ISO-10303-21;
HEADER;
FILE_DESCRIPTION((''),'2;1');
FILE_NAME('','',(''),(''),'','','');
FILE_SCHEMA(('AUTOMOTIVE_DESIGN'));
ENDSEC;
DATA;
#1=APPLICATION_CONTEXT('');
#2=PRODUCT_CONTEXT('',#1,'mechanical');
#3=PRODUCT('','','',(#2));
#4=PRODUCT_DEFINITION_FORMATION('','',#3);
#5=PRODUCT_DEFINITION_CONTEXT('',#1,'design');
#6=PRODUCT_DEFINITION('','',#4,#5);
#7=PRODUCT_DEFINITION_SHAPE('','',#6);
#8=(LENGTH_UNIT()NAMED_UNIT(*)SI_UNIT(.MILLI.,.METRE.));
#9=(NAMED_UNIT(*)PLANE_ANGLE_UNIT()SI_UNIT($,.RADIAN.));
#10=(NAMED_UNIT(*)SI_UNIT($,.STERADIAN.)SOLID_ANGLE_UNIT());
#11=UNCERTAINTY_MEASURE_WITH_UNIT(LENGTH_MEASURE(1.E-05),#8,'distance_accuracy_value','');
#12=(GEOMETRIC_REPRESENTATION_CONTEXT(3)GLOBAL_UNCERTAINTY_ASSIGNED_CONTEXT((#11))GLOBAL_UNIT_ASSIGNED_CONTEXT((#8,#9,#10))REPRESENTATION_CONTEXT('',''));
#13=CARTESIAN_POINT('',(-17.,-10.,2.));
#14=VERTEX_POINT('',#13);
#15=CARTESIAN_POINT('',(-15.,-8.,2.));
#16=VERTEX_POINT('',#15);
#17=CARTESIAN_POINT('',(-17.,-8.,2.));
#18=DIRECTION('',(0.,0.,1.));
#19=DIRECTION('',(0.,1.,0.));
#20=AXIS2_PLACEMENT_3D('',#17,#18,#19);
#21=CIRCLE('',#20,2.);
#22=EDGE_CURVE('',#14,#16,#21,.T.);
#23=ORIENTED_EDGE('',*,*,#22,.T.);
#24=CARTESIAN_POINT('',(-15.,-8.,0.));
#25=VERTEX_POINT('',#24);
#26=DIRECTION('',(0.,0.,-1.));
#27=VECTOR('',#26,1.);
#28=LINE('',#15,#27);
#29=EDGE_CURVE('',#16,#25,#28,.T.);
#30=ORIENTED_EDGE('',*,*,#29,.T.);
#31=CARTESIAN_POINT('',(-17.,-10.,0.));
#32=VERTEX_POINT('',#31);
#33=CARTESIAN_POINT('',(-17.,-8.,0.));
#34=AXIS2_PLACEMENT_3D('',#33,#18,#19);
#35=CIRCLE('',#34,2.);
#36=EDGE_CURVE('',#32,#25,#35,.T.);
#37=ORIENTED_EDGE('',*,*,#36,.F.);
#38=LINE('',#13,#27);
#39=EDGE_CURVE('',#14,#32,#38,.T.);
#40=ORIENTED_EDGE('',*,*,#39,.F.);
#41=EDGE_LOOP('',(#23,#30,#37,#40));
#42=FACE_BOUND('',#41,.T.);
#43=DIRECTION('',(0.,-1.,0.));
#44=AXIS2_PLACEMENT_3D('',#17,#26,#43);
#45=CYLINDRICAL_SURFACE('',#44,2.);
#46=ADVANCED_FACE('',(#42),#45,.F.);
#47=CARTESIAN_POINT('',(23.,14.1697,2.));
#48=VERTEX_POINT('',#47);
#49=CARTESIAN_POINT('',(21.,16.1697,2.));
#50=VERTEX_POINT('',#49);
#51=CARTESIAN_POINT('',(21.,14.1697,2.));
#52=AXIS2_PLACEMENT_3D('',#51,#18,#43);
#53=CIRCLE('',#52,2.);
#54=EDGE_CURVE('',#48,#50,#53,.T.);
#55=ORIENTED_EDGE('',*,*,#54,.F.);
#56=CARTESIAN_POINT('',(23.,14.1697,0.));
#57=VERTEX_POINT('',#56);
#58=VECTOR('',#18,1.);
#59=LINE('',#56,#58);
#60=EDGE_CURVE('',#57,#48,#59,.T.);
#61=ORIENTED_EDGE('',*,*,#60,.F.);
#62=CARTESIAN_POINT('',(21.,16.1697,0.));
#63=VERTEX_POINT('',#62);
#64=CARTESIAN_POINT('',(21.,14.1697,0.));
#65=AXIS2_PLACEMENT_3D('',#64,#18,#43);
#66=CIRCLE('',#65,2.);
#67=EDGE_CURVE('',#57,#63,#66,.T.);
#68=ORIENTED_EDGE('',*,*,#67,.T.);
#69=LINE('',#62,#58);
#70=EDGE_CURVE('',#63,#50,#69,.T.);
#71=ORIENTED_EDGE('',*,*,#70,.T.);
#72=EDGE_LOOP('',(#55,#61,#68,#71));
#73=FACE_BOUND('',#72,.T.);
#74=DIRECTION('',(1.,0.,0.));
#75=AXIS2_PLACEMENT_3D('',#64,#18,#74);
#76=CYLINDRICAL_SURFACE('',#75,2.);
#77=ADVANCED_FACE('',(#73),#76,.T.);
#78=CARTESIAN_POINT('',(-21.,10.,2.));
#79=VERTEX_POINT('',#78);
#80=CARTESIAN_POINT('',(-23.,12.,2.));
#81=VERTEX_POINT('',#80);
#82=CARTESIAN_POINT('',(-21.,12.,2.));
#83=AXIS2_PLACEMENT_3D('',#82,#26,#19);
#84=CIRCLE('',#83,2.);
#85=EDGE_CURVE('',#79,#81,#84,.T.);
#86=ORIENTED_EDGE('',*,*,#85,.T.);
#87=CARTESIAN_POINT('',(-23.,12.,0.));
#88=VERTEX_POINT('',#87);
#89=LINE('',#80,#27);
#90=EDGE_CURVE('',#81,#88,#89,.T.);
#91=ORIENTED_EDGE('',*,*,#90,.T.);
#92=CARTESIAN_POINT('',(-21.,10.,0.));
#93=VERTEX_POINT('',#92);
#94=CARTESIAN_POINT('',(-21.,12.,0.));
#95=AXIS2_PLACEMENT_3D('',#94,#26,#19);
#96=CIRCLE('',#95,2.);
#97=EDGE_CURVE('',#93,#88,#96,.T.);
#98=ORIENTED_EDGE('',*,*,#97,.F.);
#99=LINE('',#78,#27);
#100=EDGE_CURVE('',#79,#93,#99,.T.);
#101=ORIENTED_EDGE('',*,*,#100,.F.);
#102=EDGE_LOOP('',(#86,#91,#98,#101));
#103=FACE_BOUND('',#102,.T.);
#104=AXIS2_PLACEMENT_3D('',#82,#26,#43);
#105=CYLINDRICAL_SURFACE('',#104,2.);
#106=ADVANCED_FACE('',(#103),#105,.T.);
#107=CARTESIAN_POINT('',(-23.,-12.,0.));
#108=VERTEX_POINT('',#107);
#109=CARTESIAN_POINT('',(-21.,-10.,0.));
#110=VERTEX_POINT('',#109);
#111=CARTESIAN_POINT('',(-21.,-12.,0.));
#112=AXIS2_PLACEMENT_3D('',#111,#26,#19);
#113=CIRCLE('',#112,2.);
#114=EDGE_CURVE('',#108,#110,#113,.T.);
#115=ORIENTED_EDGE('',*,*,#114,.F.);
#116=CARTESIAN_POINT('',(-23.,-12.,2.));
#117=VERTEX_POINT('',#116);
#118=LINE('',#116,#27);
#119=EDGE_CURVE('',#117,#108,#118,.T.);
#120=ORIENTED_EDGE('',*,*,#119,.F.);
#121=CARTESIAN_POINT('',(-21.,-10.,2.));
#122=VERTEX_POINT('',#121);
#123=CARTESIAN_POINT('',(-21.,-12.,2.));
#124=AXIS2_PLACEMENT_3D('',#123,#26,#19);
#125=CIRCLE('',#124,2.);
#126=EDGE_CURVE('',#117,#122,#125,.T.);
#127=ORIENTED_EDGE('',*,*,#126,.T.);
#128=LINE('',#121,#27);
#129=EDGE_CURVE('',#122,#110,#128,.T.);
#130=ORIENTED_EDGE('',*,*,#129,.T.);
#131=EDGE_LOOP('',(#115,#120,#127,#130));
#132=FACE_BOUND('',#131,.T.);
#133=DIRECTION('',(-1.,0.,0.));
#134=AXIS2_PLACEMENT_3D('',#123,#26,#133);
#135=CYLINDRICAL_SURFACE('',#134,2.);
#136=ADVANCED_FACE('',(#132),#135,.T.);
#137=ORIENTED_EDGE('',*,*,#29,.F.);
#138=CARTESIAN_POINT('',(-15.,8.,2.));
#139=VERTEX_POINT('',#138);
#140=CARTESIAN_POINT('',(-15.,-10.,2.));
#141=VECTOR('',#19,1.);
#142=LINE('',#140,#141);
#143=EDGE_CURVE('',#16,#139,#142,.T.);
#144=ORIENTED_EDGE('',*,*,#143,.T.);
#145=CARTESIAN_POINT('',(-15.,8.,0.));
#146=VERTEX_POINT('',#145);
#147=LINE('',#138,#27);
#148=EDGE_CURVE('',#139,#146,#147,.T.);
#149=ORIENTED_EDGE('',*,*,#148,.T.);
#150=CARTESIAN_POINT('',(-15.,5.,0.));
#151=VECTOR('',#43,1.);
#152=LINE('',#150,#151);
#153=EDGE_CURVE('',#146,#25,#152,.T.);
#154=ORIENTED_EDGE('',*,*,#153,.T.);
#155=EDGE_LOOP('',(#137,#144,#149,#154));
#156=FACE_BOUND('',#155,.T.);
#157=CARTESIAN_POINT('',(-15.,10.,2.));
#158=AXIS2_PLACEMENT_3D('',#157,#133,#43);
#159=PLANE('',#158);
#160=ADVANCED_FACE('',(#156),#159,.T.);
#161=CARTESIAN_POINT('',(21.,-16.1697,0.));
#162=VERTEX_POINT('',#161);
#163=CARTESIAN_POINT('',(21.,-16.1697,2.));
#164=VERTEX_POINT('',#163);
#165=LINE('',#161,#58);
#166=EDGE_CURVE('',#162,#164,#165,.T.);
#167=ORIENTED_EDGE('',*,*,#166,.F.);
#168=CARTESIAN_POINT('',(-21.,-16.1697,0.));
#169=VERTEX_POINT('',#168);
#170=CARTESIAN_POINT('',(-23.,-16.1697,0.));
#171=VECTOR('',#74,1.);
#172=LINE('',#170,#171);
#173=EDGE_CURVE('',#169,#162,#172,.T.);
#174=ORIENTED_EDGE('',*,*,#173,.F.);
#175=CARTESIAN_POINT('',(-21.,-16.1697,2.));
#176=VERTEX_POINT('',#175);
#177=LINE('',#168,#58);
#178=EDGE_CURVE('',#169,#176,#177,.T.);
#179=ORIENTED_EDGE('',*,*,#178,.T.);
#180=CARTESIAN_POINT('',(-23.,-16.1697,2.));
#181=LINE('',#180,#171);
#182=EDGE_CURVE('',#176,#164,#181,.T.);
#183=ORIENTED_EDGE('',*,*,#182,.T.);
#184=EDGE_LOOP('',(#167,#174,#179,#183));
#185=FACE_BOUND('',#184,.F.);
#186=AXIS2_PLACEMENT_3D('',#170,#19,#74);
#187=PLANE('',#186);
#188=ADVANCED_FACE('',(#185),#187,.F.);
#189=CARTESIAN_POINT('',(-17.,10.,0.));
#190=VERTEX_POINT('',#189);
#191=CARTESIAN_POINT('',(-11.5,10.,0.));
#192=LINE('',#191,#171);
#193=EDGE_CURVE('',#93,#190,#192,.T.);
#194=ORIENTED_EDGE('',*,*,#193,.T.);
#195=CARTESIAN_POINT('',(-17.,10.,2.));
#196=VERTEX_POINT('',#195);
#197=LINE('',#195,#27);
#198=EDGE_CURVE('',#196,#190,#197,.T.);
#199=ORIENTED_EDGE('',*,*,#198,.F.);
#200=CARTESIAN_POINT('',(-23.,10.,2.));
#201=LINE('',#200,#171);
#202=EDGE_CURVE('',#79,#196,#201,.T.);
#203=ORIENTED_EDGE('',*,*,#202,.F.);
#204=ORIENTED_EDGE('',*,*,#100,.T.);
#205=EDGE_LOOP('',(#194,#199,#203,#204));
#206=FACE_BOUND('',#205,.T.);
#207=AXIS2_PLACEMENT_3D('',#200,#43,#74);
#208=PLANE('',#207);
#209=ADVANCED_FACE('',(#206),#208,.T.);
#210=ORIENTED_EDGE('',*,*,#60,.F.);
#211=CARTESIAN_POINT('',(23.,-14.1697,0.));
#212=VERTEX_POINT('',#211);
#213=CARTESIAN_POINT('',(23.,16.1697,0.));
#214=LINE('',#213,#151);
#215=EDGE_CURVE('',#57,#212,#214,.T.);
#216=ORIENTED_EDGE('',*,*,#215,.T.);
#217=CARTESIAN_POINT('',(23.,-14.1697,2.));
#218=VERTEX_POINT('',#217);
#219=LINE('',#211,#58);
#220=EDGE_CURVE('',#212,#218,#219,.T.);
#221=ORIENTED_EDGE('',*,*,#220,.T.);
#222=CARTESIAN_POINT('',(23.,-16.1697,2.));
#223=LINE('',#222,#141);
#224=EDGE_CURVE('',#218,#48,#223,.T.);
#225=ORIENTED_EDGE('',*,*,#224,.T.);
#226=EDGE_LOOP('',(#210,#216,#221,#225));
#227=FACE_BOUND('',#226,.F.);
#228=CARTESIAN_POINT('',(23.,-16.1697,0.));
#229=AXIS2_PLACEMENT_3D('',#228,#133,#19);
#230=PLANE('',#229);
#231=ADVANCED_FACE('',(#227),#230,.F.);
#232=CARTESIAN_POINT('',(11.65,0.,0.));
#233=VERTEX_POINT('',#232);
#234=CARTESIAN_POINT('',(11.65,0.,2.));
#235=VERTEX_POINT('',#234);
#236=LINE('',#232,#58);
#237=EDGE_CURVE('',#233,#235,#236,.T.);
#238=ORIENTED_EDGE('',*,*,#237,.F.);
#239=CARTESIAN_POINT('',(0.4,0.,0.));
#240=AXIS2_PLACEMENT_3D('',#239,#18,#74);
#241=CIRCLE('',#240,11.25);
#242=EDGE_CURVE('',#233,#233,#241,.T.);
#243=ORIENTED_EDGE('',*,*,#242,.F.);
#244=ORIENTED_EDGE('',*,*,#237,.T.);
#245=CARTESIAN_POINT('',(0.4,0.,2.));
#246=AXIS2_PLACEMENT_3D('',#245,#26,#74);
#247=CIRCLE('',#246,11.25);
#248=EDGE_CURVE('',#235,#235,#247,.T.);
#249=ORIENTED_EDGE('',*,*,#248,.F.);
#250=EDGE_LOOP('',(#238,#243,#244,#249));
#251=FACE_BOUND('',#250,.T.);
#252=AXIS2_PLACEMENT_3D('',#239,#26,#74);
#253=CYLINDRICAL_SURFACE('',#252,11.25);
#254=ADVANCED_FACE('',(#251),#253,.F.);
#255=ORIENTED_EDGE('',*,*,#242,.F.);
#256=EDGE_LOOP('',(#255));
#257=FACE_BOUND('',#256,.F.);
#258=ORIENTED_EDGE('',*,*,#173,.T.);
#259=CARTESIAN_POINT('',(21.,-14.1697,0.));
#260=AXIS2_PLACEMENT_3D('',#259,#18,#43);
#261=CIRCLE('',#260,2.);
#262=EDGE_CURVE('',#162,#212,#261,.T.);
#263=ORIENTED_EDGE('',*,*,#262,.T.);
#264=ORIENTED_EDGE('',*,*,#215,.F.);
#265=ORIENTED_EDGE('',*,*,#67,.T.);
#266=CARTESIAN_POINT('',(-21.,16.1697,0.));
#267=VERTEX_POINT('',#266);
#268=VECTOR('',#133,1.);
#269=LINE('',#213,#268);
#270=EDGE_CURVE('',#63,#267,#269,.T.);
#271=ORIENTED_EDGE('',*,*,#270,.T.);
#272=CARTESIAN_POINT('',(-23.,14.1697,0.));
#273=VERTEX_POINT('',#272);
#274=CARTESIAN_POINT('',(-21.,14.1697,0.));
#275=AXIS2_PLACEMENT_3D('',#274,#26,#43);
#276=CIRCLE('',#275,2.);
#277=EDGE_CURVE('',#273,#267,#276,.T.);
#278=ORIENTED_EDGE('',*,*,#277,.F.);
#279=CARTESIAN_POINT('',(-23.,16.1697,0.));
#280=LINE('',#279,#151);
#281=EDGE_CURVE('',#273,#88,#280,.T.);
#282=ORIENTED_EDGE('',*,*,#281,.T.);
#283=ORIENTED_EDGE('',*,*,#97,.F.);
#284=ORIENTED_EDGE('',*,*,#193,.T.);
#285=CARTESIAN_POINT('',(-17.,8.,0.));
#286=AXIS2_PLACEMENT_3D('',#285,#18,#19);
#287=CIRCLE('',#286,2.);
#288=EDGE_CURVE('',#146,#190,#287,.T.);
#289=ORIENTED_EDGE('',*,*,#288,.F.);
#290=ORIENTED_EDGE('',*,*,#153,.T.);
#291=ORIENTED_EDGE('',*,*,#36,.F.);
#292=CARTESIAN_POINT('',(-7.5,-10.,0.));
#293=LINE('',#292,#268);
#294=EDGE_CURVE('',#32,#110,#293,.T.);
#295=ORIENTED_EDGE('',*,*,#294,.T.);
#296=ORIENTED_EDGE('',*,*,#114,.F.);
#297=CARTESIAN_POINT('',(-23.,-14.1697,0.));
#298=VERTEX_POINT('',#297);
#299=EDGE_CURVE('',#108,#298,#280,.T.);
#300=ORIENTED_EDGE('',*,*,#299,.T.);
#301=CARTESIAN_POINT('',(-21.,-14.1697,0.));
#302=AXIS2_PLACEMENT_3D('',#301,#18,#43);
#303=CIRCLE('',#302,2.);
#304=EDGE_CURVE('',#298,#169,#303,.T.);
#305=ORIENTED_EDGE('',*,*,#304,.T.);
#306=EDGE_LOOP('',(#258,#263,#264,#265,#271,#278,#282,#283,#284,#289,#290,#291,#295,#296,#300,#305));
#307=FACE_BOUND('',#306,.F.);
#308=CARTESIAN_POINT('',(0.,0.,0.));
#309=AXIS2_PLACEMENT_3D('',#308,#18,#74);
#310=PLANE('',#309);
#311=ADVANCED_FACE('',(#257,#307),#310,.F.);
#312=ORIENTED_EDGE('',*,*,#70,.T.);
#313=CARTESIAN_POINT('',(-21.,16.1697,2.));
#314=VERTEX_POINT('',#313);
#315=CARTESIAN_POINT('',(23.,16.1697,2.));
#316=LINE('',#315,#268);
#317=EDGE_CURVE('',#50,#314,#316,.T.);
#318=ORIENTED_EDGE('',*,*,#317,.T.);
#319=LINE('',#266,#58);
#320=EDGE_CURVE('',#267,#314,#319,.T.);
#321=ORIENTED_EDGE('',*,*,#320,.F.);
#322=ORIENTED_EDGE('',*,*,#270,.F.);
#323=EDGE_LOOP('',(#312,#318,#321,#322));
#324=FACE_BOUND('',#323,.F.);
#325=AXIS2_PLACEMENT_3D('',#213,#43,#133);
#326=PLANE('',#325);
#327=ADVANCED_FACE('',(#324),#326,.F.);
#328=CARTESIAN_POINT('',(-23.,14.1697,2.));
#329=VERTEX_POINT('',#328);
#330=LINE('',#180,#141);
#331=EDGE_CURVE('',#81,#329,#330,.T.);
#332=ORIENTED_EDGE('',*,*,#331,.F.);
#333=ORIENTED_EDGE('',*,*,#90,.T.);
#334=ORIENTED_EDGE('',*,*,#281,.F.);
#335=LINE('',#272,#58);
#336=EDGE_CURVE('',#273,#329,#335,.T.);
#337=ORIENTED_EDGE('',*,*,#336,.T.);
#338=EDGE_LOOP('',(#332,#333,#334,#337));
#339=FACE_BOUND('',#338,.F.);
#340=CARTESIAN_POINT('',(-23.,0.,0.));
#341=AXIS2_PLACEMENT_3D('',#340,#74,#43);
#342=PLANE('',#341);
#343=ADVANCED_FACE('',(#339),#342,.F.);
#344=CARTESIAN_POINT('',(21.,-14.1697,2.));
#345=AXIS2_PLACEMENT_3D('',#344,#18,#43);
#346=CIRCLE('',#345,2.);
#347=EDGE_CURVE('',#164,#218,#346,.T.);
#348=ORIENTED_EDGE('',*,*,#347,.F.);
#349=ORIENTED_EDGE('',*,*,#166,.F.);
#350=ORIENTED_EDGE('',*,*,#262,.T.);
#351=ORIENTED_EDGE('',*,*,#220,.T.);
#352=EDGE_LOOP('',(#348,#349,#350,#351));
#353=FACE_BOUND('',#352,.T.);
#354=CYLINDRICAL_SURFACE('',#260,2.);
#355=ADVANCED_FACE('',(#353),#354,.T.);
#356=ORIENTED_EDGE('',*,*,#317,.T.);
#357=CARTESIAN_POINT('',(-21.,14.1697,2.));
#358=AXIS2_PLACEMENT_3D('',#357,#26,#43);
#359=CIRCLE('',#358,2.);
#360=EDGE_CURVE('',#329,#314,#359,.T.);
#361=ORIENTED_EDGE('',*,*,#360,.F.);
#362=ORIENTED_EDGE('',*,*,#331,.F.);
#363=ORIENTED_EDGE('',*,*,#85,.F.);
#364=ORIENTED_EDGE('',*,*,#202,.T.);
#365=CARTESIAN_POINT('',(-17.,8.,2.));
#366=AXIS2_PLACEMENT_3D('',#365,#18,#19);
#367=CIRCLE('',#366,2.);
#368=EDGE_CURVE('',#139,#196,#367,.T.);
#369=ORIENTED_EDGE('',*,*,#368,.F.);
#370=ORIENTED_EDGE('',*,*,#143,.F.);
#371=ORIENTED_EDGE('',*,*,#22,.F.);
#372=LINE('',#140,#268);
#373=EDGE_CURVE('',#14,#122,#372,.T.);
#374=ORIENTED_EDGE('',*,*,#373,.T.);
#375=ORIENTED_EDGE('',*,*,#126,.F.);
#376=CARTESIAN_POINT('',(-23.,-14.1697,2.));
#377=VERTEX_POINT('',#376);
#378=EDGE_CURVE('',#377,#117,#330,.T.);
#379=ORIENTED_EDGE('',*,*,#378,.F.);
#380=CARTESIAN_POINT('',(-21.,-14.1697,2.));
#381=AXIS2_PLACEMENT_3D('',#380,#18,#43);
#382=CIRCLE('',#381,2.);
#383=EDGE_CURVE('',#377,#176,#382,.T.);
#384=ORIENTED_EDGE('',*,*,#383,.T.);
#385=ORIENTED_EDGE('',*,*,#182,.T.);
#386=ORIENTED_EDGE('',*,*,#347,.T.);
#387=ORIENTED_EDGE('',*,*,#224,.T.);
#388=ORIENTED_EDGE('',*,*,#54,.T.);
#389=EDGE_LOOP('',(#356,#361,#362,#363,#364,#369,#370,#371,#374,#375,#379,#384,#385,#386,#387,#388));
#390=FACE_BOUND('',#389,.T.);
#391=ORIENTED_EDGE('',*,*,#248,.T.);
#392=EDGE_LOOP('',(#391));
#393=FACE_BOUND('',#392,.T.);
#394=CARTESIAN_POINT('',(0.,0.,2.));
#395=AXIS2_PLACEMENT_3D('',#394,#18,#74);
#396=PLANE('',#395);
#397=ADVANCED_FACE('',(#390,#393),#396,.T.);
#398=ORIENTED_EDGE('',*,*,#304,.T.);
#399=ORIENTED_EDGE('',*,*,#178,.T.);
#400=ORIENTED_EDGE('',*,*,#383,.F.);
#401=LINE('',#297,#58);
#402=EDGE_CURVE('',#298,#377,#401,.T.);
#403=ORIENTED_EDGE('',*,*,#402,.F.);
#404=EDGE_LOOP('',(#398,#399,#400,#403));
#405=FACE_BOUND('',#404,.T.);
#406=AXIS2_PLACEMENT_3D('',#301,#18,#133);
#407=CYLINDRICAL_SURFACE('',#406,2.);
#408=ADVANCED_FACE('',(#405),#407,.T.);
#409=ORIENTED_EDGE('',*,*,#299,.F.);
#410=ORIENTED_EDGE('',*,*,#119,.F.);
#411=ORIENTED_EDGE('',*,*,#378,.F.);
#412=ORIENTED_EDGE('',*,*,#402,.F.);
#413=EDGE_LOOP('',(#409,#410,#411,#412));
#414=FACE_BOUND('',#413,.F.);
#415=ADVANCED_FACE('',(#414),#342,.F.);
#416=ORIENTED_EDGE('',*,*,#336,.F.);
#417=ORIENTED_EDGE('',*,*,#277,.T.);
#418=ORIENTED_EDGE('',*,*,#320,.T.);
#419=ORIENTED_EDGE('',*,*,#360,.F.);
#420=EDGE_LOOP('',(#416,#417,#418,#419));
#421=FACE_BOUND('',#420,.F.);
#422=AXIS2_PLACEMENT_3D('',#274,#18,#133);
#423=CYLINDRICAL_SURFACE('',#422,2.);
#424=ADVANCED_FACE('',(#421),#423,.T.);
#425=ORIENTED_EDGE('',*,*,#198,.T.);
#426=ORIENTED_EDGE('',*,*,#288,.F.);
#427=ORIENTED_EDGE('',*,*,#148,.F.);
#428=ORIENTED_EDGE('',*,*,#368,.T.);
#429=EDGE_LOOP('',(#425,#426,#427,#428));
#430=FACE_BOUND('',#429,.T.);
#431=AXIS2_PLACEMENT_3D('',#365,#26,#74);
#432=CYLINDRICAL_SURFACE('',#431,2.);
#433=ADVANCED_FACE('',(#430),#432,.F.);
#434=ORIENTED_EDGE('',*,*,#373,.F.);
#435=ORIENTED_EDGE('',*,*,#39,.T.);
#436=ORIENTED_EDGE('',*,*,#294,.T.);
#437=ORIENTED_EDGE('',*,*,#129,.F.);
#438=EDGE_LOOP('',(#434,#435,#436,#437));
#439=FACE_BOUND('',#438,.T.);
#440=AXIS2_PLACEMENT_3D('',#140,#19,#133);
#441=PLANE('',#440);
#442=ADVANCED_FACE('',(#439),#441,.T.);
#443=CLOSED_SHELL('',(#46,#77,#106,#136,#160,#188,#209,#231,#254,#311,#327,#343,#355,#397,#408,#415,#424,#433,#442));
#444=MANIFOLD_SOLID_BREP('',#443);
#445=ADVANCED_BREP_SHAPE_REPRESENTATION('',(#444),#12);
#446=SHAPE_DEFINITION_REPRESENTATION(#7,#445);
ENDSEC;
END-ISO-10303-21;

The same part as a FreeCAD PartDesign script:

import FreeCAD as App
import Part
import Sketcher

V = App.Vector


def edges_at(feature, points):
    """Names of the edges that pass closest to the given points."""
    edges = feature.Shape.Edges
    near = lambda p: min(range(len(edges)), key=lambda i: edges[i].distToShape(Part.Vertex(*p))[0])
    return sorted({f"Edge{near(p) + 1}" for p in points})


def add_polygon(sketch, points):
    """Adds a closed chain of lines whose ends are joined by coincident constraints."""
    first, n = sketch.GeometryCount, len(points)
    for a, b in zip(points, points[1:] + points[:1]):
        sketch.addGeometry(Part.LineSegment(App.Vector(*a, 0), App.Vector(*b, 0)), False)
    for i in range(n):
        sketch.addConstraint(Sketcher.Constraint("Coincident", first + i, 2, first + (i + 1) % n, 1))

doc = App.newDocument("Part")
params = doc.addObject("Spreadsheet::Sheet", "Params")
for row, (alias, value) in enumerate([
    ("sketch1_diameter", "22.5 mm"),
    ("sketch1_width", "46 mm"),
    ("pad1_length", "2 mm"),
    ("sketch2_width", "8 mm"),
    ("sketch2_height", "20 mm"),
    ("fillet_radius", "2 mm"),
], start=1):
    params.set(f"A{row}", alias)
    params.set(f"B{row}", "=" + value)
    params.setAlias(f"B{row}", alias)

body = doc.addObject("PartDesign::Body", "Body")

# Sketch on XY plane
sketch1 = body.newObject("Sketcher::SketchObject", "Sketch")
sketch1.AttachmentSupport = (doc.getObject("XY_Plane"), [""])
sketch1.MapMode = "FlatFace"
add_polygon(sketch1, [(-23, -16.1697), (23, -16.1697), (23, 16.1697), (-23, 16.1697)])  # lines 0-3
sketch1.addGeometry(Part.Circle(V(0.4, 0, 0), V(0, 0, 1), 11.25), False)  # 4
sketch1.addConstraint([
    Sketcher.Constraint("Horizontal", 0),
    Sketcher.Constraint("Vertical", 1),
    Sketcher.Constraint("Horizontal", 2),
    Sketcher.Constraint("Vertical", 3),
    Sketcher.Constraint("Symmetric", 0, 2, 2, 2, -1, 1),
    Sketcher.Constraint("PointOnObject", 4, 3, -1),
    Sketcher.Constraint("Diameter", 4, 22.5),
    Sketcher.Constraint("DistanceX", 0, 1, 0, 2, 46.0),
    Sketcher.Constraint("DistanceX", 4, 3, 0, 2, 22.6),
    Sketcher.Constraint("DistanceY", 1, 1, 1, 2, 32.3394),
])
sketch1.setExpression("Constraints[10]", "Params.sketch1_diameter")
sketch1.setExpression("Constraints[11]", "Params.sketch1_width")
pad1 = body.newObject("PartDesign::Pad", "Pad")
pad1.Profile = sketch1
pad1.setExpression("Length", "Params.pad1_length")

# Sketch on XY plane
sketch2 = body.newObject("Sketcher::SketchObject", "Sketch001")
sketch2.AttachmentSupport = (doc.getObject("XY_Plane"), [""])
sketch2.MapMode = "FlatFace"
sketch2.AttachmentOffset = App.Placement(V(0, 0, 2), App.Rotation())
add_polygon(sketch2, [(-23, 10), (-23, -10), (-15, -10), (-15, 10)])  # lines 0-3
sketch2.addConstraint([
    Sketcher.Constraint("Vertical", 0),
    Sketcher.Constraint("Horizontal", 1),
    Sketcher.Constraint("Vertical", 2),
    Sketcher.Constraint("Horizontal", 3),
    Sketcher.Constraint("DistanceX", 1, 1, 1, 2, 8.0),
    Sketcher.Constraint("DistanceY", 0, 2, 0, 1, 20.0),
    Sketcher.Constraint("DistanceX", 0, 2, -1, 1, 23.0),
    Sketcher.Constraint("DistanceY", 0, 2, -1, 1, 10.0),
])
sketch2.setExpression("Constraints[8]", "Params.sketch2_width")
sketch2.setExpression("Constraints[9]", "Params.sketch2_height")
pocket1 = body.newObject("PartDesign::Pocket", "Pocket")
pocket1.Profile = sketch2
pocket1.Type = "ThroughAll"
doc.recompute()

fillet = body.newObject("PartDesign::Fillet", "Fillet")
fillet.Base = (pocket1, edges_at(pocket1, [
    (-15, 10, 1),
    (-15, -10, 1),
    (-23, -10, 1),
    (-23, -16.17, 1),
    (-23, 10, 1),
    (-23, 16.17, 1),
    (23, -16.17, 1),
    (23, 16.17, 1),
]))
fillet.setExpression("Radius", "Params.fillet_radius")

doc.recompute()
